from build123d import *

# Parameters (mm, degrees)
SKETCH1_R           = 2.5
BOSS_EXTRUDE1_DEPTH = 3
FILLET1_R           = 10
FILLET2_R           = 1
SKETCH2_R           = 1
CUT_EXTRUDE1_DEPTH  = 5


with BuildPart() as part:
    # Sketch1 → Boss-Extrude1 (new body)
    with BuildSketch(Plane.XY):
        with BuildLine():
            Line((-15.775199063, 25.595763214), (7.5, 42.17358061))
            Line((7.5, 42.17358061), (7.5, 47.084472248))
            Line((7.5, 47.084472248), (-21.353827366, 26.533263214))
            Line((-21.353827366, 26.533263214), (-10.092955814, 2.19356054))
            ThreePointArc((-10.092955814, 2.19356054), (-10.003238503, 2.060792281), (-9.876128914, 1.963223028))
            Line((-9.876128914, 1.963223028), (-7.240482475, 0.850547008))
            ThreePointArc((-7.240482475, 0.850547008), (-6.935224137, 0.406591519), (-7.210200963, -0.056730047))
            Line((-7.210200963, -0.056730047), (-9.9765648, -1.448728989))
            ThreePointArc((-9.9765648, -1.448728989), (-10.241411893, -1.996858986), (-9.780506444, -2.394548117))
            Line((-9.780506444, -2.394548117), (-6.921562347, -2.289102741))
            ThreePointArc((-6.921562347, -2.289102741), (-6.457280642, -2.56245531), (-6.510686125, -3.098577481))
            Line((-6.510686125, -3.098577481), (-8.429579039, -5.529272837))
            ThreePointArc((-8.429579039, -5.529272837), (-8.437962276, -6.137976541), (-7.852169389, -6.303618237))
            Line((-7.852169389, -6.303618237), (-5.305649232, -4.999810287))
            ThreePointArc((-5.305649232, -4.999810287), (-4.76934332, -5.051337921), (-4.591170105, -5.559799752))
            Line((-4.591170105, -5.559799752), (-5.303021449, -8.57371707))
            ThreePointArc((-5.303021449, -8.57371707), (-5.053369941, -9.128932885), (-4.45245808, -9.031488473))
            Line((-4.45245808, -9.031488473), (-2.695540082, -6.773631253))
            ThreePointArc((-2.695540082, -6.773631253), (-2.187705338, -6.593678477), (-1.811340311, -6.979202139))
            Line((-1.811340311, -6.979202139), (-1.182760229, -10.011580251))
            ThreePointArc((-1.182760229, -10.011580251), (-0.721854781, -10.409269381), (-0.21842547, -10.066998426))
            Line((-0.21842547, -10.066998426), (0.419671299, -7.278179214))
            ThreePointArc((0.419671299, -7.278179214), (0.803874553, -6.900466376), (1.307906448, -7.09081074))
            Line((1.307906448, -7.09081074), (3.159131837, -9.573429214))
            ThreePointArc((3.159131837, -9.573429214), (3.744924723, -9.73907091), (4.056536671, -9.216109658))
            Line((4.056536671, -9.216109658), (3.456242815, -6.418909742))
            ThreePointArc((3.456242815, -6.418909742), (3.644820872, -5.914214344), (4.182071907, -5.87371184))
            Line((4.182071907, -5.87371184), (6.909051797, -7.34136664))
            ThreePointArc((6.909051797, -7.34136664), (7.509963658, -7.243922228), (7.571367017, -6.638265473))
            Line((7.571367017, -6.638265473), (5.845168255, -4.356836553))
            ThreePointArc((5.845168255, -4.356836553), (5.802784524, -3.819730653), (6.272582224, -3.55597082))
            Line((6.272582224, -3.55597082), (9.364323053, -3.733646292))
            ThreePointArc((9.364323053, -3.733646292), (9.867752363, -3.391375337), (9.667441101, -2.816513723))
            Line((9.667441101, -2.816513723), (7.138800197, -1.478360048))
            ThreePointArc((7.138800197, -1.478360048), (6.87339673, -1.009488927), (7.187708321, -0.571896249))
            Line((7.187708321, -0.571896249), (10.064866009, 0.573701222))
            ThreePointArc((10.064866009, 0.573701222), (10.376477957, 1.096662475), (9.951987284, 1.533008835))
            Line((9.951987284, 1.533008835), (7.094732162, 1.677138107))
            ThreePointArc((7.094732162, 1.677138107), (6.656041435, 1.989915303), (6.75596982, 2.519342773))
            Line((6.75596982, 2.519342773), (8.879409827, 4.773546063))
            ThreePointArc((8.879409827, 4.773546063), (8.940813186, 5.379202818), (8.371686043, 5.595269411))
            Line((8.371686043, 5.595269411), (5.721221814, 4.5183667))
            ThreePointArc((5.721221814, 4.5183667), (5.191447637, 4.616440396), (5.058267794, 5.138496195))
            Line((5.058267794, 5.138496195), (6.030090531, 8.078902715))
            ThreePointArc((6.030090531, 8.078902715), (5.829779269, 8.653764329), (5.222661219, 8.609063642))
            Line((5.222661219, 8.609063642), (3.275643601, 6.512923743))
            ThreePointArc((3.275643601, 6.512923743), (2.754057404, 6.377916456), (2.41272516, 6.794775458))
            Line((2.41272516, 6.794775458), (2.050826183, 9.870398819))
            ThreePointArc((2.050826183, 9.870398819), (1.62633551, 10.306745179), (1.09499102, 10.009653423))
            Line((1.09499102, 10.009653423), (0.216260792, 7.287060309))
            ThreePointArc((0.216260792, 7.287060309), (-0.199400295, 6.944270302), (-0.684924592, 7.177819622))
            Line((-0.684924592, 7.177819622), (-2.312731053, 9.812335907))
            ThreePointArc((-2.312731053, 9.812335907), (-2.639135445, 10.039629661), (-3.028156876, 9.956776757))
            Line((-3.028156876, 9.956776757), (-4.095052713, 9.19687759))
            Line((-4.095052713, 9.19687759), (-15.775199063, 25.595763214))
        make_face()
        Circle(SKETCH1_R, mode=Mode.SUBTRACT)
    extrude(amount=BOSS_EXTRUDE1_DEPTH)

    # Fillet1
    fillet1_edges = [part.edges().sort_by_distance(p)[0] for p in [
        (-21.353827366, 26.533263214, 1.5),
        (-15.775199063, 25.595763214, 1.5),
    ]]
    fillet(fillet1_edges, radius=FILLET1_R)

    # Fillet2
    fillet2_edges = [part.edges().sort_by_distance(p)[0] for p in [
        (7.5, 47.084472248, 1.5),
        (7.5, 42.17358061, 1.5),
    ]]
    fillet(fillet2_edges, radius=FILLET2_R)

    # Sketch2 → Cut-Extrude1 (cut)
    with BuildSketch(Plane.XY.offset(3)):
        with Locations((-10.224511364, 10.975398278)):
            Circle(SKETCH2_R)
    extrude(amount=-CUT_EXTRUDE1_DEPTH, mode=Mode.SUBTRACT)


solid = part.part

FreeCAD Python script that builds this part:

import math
import FreeCAD as App
import Part
import Sketcher
Q = App.Units.Quantity


def edges_at(feature, points):
    """Names of the edges that pass closest to the given points."""
    edges = feature.Shape.Edges
    near = lambda p: min(range(len(edges)), key=lambda i: edges[i].distToShape(Part.Vertex(*p))[0])
    return sorted({f"Edge{near(p) + 1}" for p in points})

doc = App.newDocument("Part")
body = doc.addObject("PartDesign::Body", "Body")

# Sketch on XY plane
sketch1 = body.newObject("Sketcher::SketchObject", "Sketch")
sketch1.AttachmentSupport = (doc.getObject("XY_Plane"), [""])
sketch1.MapMode = "FlatFace"
sketch1.addGeometry([
    Part.LineSegment(App.Vector(-15.775199, 25.595763, 0), App.Vector(7.5, 42.173581, 0)),  # 0
    Part.LineSegment(App.Vector(7.5, 42.173581, 0), App.Vector(7.5, 47.084472, 0)),  # 1
    Part.LineSegment(App.Vector(7.5, 47.084472, 0), App.Vector(-21.353827, 26.533263, 0)),  # 2
    Part.LineSegment(App.Vector(-21.353827, 26.533263, 0), App.Vector(-10.092956, 2.193561, 0)),  # 3
    Part.ArcOfCircle(Part.Circle(App.Vector(-9.639169, 2.403507, 0), App.Vector(0, 0, 1), 0.5), math.radians(-155.172169), math.radians(-118.289044)),  # 4
    Part.LineSegment(App.Vector(-9.876129, 1.963223, 0), App.Vector(-7.240482, 0.850547, 0)),  # 5
    Part.ArcOfCircle(Part.Circle(App.Vector(-7.434946, 0.389913, 0), App.Vector(0, 0, 1), 0.5), math.radians(-63.289044), math.radians(67.112262)),  # 6
    Part.LineSegment(App.Vector(-7.210201, -0.05673, 0), App.Vector(-9.976565, -1.448729, 0)),  # 7
    Part.ArcOfCircle(Part.Circle(App.Vector(-9.75182, -1.895372, 0), App.Vector(0, 0, 1), 0.5), math.radians(116.710957), math.radians(266.710956)),  # 8
    Part.LineSegment(App.Vector(-9.780506, -2.394548, 0), App.Vector(-6.921562, -2.289103, 0)),  # 9
    Part.ArcOfCircle(Part.Circle(App.Vector(-6.903134, -2.788763, 0), App.Vector(0, 0, 1), 0.5), math.radians(-38.289043), math.radians(92.112262)),  # 10
    Part.LineSegment(App.Vector(-6.510686, -3.098577, 0), App.Vector(-8.429579, -5.529273, 0)),  # 11
    Part.ArcOfCircle(Part.Circle(App.Vector(-8.037132, -5.839087, 0), App.Vector(0, 0, 1), 0.5), math.radians(141.710956), math.radians(291.710957)),  # 12
    Part.LineSegment(App.Vector(-7.852169, -6.303618, 0), App.Vector(-5.305649, -4.99981, 0)),  # 13
    Part.ArcOfCircle(Part.Circle(App.Vector(-5.077782, -5.444868, 0), App.Vector(0, 0, 1), 0.5), math.radians(-13.289043), math.radians(117.112262)),  # 14
    Part.LineSegment(App.Vector(-4.59117, -5.5598, 0), App.Vector(-5.303021, -8.573717, 0)),  # 15
    Part.ArcOfCircle(Part.Circle(App.Vector(-4.81641, -8.688649, 0), App.Vector(0, 0, 1), 0.5), math.radians(166.710957), math.radians(316.710956)),  # 16
    Part.LineSegment(App.Vector(-4.452458, -9.031488, 0), App.Vector(-2.69554, -6.773631, 0)),  # 17
    Part.ArcOfCircle(Part.Circle(App.Vector(-2.300932, -7.080689, 0), App.Vector(0, 0, 1), 0.5), math.radians(11.710957), math.radians(142.112262)),  # 18
    Part.LineSegment(App.Vector(-1.81134, -6.979202, 0), App.Vector(-1.18276, -10.01158, 0)),  # 19
    Part.ArcOfCircle(Part.Circle(App.Vector(-0.693168, -9.910093, 0), App.Vector(0, 0, 1), 0.5), math.radians(-168.289043), math.radians(-18.289044)),  # 20
    Part.LineSegment(App.Vector(-0.218425, -10.066998, 0), App.Vector(0.419671, -7.278179, 0)),  # 21
    Part.ArcOfCircle(Part.Circle(App.Vector(0.907076, -7.3897, 0), App.Vector(0, 0, 1), 0.5), math.radians(36.710957), math.radians(167.112261)),  # 22
    Part.LineSegment(App.Vector(1.307906, -7.090811, 0), App.Vector(3.159132, -9.573429, 0)),  # 23
    Part.ArcOfCircle(Part.Circle(App.Vector(3.559963, -9.27454, 0), App.Vector(0, 0, 1), 0.5), math.radians(-143.289043), math.radians(6.710956)),  # 24
    Part.LineSegment(App.Vector(4.056537, -9.21611, 0), App.Vector(3.456243, -6.41891, 0)),  # 25
    Part.ArcOfCircle(Part.Circle(App.Vector(3.945112, -6.313996, 0), App.Vector(0, 0, 1), 0.5), math.radians(61.710956), math.radians(192.112262)),  # 26
    Part.LineSegment(App.Vector(4.182072, -5.873712, 0), App.Vector(6.909052, -7.341367, 0)),  # 27
    Part.ArcOfCircle(Part.Circle(App.Vector(7.146012, -6.901083, 0), App.Vector(0, 0, 1), 0.5), math.radians(-118.289044), math.radians(31.710957)),  # 28
    Part.LineSegment(App.Vector(7.571367, -6.638265, 0), App.Vector(5.845168, -4.356837, 0)),  # 29
    Part.ArcOfCircle(Part.Circle(App.Vector(6.243896, -4.055147, 0), App.Vector(0, 0, 1), 0.5), math.radians(86.710956), math.radians(217.112262)),  # 30
    Part.LineSegment(App.Vector(6.272582, -3.555971, 0), App.Vector(9.364323, -3.733646, 0)),  # 31
    Part.ArcOfCircle(Part.Circle(App.Vector(9.39301, -3.23447, 0), App.Vector(0, 0, 1), 0.5), math.radians(-93.289044), math.radians(56.710956)),  # 32
    Part.LineSegment(App.Vector(9.667441, -2.816514, 0), App.Vector(7.1388, -1.47836, 0)),  # 33
    Part.ArcOfCircle(Part.Circle(App.Vector(7.372671, -1.036427, 0), App.Vector(0, 0, 1), 0.5), math.radians(111.710956), math.radians(242.112262)),  # 34
    Part.LineSegment(App.Vector(7.187708, -0.571896, 0), App.Vector(10.064866, 0.573701, 0)),  # 35
    Part.ArcOfCircle(Part.Circle(App.Vector(9.879904, 1.038232, 0), App.Vector(0, 0, 1), 0.5), math.radians(-68.289044), math.radians(81.710956)),  # 36
    Part.LineSegment(App.Vector(9.951987, 1.533009, 0), App.Vector(7.094732, 1.677138, 0)),  # 37
    Part.ArcOfCircle(Part.Circle(App.Vector(7.119922, 2.176503, 0), App.Vector(0, 0, 1), 0.5), math.radians(136.710957), math.radians(267.112262)),  # 38
    Part.LineSegment(App.Vector(6.75597, 2.519343, 0), App.Vector(8.87941, 4.773546, 0)),  # 39
    Part.ArcOfCircle(Part.Circle(App.Vector(8.515458, 5.116386, 0), App.Vector(0, 0, 1), 0.5), math.radians(-43.289043), math.radians(106.710956)),  # 40
    Part.LineSegment(App.Vector(8.371686, 5.595269, 0), App.Vector(5.721222, 4.518367, 0)),  # 41
    Part.ArcOfCircle(Part.Circle(App.Vector(5.533011, 4.981591, 0), App.Vector(0, 0, 1), 0.5), math.radians(161.710956), math.radians(292.112262)),  # 42
    Part.LineSegment(App.Vector(5.058268, 5.138496, 0), App.Vector(6.030091, 8.078903, 0)),  # 43
    Part.ArcOfCircle(Part.Circle(App.Vector(5.555348, 8.235808, 0), App.Vector(0, 0, 1), 0.5), math.radians(-18.289043), math.radians(131.710956)),  # 44
    Part.LineSegment(App.Vector(5.222661, 8.609064, 0), App.Vector(3.275644, 6.512924, 0)),  # 45
    Part.ArcOfCircle(Part.Circle(App.Vector(2.909299, 6.853206, 0), App.Vector(0, 0, 1), 0.5), math.radians(-173.289043), math.radians(-42.887739)),  # 46
    Part.LineSegment(App.Vector(2.412725, 6.794775, 0), App.Vector(2.050826, 9.870399, 0)),  # 47
    Part.ArcOfCircle(Part.Circle(App.Vector(1.554252, 9.811968, 0), App.Vector(0, 0, 1), 0.5), math.radians(6.710956), math.radians(156.710956)),  # 48
    Part.LineSegment(App.Vector(1.094991, 10.009653, 0), App.Vector(0.216261, 7.28706, 0)),  # 49
    Part.ArcOfCircle(Part.Circle(App.Vector(-0.259569, 7.440637, 0), App.Vector(0, 0, 1), 0.5), math.radians(-148.289043), math.radians(-17.887738)),  # 50
    Part.LineSegment(App.Vector(-0.684925, 7.17782, 0), App.Vector(-2.312731, 9.812336, 0)),  # 51
    Part.ArcOfCircle(Part.Circle(App.Vector(-2.738086, 9.549519, 0), App.Vector(0, 0, 1), 0.5), math.radians(31.710956), math.radians(125.460463)),  # 52
    Part.LineSegment(App.Vector(-3.028157, 9.956777, 0), App.Vector(-4.095053, 9.196878, 0)),  # 53
    Part.LineSegment(App.Vector(-4.095053, 9.196878, 0), App.Vector(-15.775199, 25.595763, 0)),  # 54
    Part.Circle(App.Vector(0, 0, 0), App.Vector(0, 0, 1), 2.5),  # 55
], False)
sketch1.addConstraint([
    Sketcher.Constraint("Coincident", 0, 2, 1, 1),
    Sketcher.Constraint("Coincident", 1, 2, 2, 1),
    Sketcher.Constraint("Coincident", 2, 2, 3, 1),
    Sketcher.Constraint("Coincident", 3, 2, 4, 1),
    Sketcher.Constraint("Coincident", 4, 2, 5, 1),
    Sketcher.Constraint("Coincident", 5, 2, 6, 2),
    Sketcher.Constraint("Coincident", 6, 1, 7, 1),
    Sketcher.Constraint("Coincident", 7, 2, 8, 1),
    Sketcher.Constraint("Coincident", 8, 2, 9, 1),
    Sketcher.Constraint("Coincident", 9, 2, 10, 2),
    Sketcher.Constraint("Coincident", 10, 1, 11, 1),
    Sketcher.Constraint("Coincident", 11, 2, 12, 1),
    Sketcher.Constraint("Coincident", 12, 2, 13, 1),
    Sketcher.Constraint("Coincident", 13, 2, 14, 2),
    Sketcher.Constraint("Coincident", 14, 1, 15, 1),
    Sketcher.Constraint("Coincident", 15, 2, 16, 1),
    Sketcher.Constraint("Coincident", 16, 2, 17, 1),
    Sketcher.Constraint("Coincident", 17, 2, 18, 2),
    Sketcher.Constraint("Coincident", 18, 1, 19, 1),
    Sketcher.Constraint("Coincident", 19, 2, 20, 1),
    Sketcher.Constraint("Coincident", 20, 2, 21, 1),
    Sketcher.Constraint("Coincident", 21, 2, 22, 2),
    Sketcher.Constraint("Coincident", 22, 1, 23, 1),
    Sketcher.Constraint("Coincident", 23, 2, 24, 1),
    Sketcher.Constraint("Coincident", 24, 2, 25, 1),
    Sketcher.Constraint("Coincident", 25, 2, 26, 2),
    Sketcher.Constraint("Coincident", 26, 1, 27, 1),
    Sketcher.Constraint("Coincident", 27, 2, 28, 1),
    Sketcher.Constraint("Coincident", 28, 2, 29, 1),
    Sketcher.Constraint("Coincident", 29, 2, 30, 2),
    Sketcher.Constraint("Coincident", 30, 1, 31, 1),
    Sketcher.Constraint("Coincident", 31, 2, 32, 1),
    Sketcher.Constraint("Coincident", 32, 2, 33, 1),
    Sketcher.Constraint("Coincident", 33, 2, 34, 2),
    Sketcher.Constraint("Coincident", 34, 1, 35, 1),
    Sketcher.Constraint("Coincident", 35, 2, 36, 1),
    Sketcher.Constraint("Coincident", 36, 2, 37, 1),
    Sketcher.Constraint("Coincident", 37, 2, 38, 2),
    Sketcher.Constraint("Coincident", 38, 1, 39, 1),
    Sketcher.Constraint("Coincident", 39, 2, 40, 1),
    Sketcher.Constraint("Coincident", 40, 2, 41, 1),
    Sketcher.Constraint("Coincident", 41, 2, 42, 2),
    Sketcher.Constraint("Coincident", 42, 1, 43, 1),
    Sketcher.Constraint("Coincident", 43, 2, 44, 1),
    Sketcher.Constraint("Coincident", 44, 2, 45, 1),
    Sketcher.Constraint("Coincident", 45, 2, 46, 2),
    Sketcher.Constraint("Coincident", 46, 1, 47, 1),
    Sketcher.Constraint("Coincident", 47, 2, 48, 1),
    Sketcher.Constraint("Coincident", 48, 2, 49, 1),
    Sketcher.Constraint("Coincident", 49, 2, 50, 2),
    Sketcher.Constraint("Coincident", 50, 1, 51, 1),
    Sketcher.Constraint("Coincident", 51, 2, 52, 1),
    Sketcher.Constraint("Coincident", 52, 2, 53, 1),
    Sketcher.Constraint("Coincident", 53, 2, 54, 1),
    Sketcher.Constraint("Coincident", 54, 2, 0, 1),
    Sketcher.Constraint("Vertical", 1),
    Sketcher.Constraint("Coincident", 55, 3, -1, 1),
    Sketcher.Constraint("Diameter", 55, Q("5 mm")),
    Sketcher.Constraint("Radius", 4, Q("0.5 mm")),
    Sketcher.Constraint("Radius", 6, Q("0.5 mm")),
    Sketcher.Constraint("Radius", 8, Q("0.5 mm")),
    Sketcher.Constraint("Radius", 10, Q("0.5 mm")),
    Sketcher.Constraint("Radius", 12, Q("0.5 mm")),
    Sketcher.Constraint("Radius", 14, Q("0.5 mm")),
    Sketcher.Constraint("Radius", 16, Q("0.5 mm")),
    Sketcher.Constraint("Radius", 18, Q("0.5 mm")),
    Sketcher.Constraint("Radius", 20, Q("0.5 mm")),
    Sketcher.Constraint("Radius", 22, Q("0.5 mm")),
    Sketcher.Constraint("Radius", 24, Q("0.5 mm")),
    Sketcher.Constraint("Radius", 26, Q("0.5 mm")),
    Sketcher.Constraint("Radius", 28, Q("0.5 mm")),
    Sketcher.Constraint("Radius", 30, Q("0.5 mm")),
    Sketcher.Constraint("Radius", 32, Q("0.5 mm")),
    Sketcher.Constraint("Radius", 34, Q("0.5 mm")),
    Sketcher.Constraint("Radius", 36, Q("0.5 mm")),
    Sketcher.Constraint("Radius", 38, Q("0.5 mm")),
    Sketcher.Constraint("Radius", 40, Q("0.5 mm")),
    Sketcher.Constraint("Radius", 42, Q("0.5 mm")),
    Sketcher.Constraint("Radius", 44, Q("0.5 mm")),
    Sketcher.Constraint("Radius", 46, Q("0.5 mm")),
    Sketcher.Constraint("Radius", 48, Q("0.5 mm")),
    Sketcher.Constraint("Radius", 50, Q("0.5 mm")),
    Sketcher.Constraint("Radius", 52, Q("0.5 mm")),
    Sketcher.Constraint("DistanceX", -1, 1, 0, 2, Q("7.5 mm")),
    Sketcher.Constraint("DistanceY", 20, 2, -1, 1, Q("10.066998 mm")),
    Sketcher.Constraint("DistanceY", 1, 1, 1, 2, Q("4.910892 mm")),
    Sketcher.Constraint("DistanceY", 22, 3, -1, 1, Q("7.3897 mm")),
    Sketcher.Constraint("DistanceX", -1, 1, 46, 3, Q("2.909299 mm")),
    Sketcher.Constraint("DistanceX", 6, 1, -1, 1, Q("7.210201 mm")),
    Sketcher.Constraint("DistanceY", 14, 1, -1, 1, Q("5.5598 mm")),
    Sketcher.Constraint("DistanceX", -1, 1, 33, 2, Q("7.1388 mm")),
    Sketcher.Constraint("DistanceY", -1, 1, 35, 2, Q("0.573701 mm")),
    Sketcher.Constraint("DistanceY", -1, 1, 47, 2, Q("9.870399 mm")),
    Sketcher.Constraint("DistanceX", 54, 2, -1, 1, Q("15.775199 mm")),
    Sketcher.Constraint("Distance", 7, Q("3.096842 mm")),
    Sketcher.Constraint("Distance", 11, Q("3.096842 mm")),
    Sketcher.Constraint("Distance", 15, Q("3.096842 mm")),
    Sketcher.Constraint("Distance", 19, Q("3.096842 mm")),
    Sketcher.Constraint("Distance", 23, Q("3.096842 mm")),
    Sketcher.Constraint("Distance", 27, Q("3.096842 mm")),
    Sketcher.Constraint("Distance", 31, Q("3.096842 mm")),
    Sketcher.Constraint("Distance", 35, Q("3.096842 mm")),
    Sketcher.Constraint("Distance", 39, Q("3.096842 mm")),
    Sketcher.Constraint("Distance", 43, Q("3.096842 mm")),
    Sketcher.Constraint("Distance", 47, Q("3.096842 mm")),
    Sketcher.Constraint("Distance", 51, Q("3.096842 mm")),
    Sketcher.Constraint("DistanceX", 4, 3, -1, 1, Q("9.639169 mm")),
    Sketcher.Constraint("DistanceX", 8, 3, -1, 1, Q("9.75182 mm")),
    Sketcher.Constraint("DistanceY", 8, 3, -1, 1, Q("1.895372 mm")),
    Sketcher.Constraint("DistanceX", 12, 3, -1, 1, Q("8.037132 mm")),
    Sketcher.Constraint("DistanceX", 14, 3, -1, 1, Q("5.077782 mm")),
    Sketcher.Constraint("DistanceX", 16, 3, -1, 1, Q("4.81641 mm")),
    Sketcher.Constraint("DistanceY", 16, 3, -1, 1, Q("8.688649 mm")),
    Sketcher.Constraint("DistanceY", 18, 3, -1, 1, Q("7.080689 mm")),
    Sketcher.Constraint("DistanceX", 20, 3, -1, 1, Q("0.693168 mm")),
    Sketcher.Constraint("DistanceY", 24, 3, -1, 1, Q("9.27454 mm")),
    Sketcher.Constraint("DistanceX", -1, 1, 26, 3, Q("3.945112 mm")),
    Sketcher.Constraint("DistanceX", -1, 1, 28, 3, Q("7.146012 mm")),
    Sketcher.Constraint("DistanceX", -1, 1, 32, 3, Q("9.39301 mm")),
    Sketcher.Constraint("DistanceY", 32, 3, -1, 1, Q("3.23447 mm")),
    Sketcher.Constraint("DistanceX", -1, 1, 34, 3, Q("7.372671 mm")),
    Sketcher.Constraint("DistanceX", -1, 1, 38, 3, Q("7.119922 mm")),
    Sketcher.Constraint("DistanceX", -1, 1, 42, 3, Q("5.533011 mm")),
    Sketcher.Constraint("DistanceY", -1, 1, 42, 3, Q("4.981591 mm")),
    Sketcher.Constraint("DistanceY", -1, 1, 44, 3, Q("8.235808 mm")),
    Sketcher.Constraint("DistanceY", -1, 1, 48, 3, Q("9.811968 mm")),
    Sketcher.Constraint("DistanceX", 50, 3, -1, 1, Q("0.259569 mm")),
    Sketcher.Constraint("DistanceY", -1, 1, 52, 3, Q("9.549519 mm")),
    Sketcher.Constraint("DistanceY", -1, 1, 0, 2, Q("42.173581 mm")),
    Sketcher.Constraint("DistanceY", -1, 1, 3, 2, Q("2.193561 mm")),
    Sketcher.Constraint("DistanceX", 4, 2, -1, 1, Q("9.876129 mm")),
    Sketcher.Constraint("DistanceY", 6, 1, -1, 1, Q("0.05673 mm")),
    Sketcher.Constraint("DistanceY", 8, 2, -1, 1, Q("2.394548 mm")),
    Sketcher.Constraint("DistanceX", 11, 2, -1, 1, Q("8.429579 mm")),
    Sketcher.Constraint("DistanceX", 12, 2, -1, 1, Q("7.852169 mm")),
    Sketcher.Constraint("DistanceY", 12, 2, -1, 1, Q("6.303618 mm")),
    Sketcher.Constraint("DistanceX", 13, 2, -1, 1, Q("5.305649 mm")),
    Sketcher.Constraint("DistanceY", 13, 2, -1, 1, Q("4.99981 mm")),
    Sketcher.Constraint("DistanceX", 16, 2, -1, 1, Q("4.452458 mm")),
    Sketcher.Constraint("DistanceX", 17, 2, -1, 1, Q("2.69554 mm")),
    Sketcher.Constraint("DistanceY", 17, 2, -1, 1, Q("6.773631 mm")),
    Sketcher.Constraint("DistanceX", 18, 1, -1, 1, Q("1.81134 mm")),
    Sketcher.Constraint("DistanceX", 19, 2, -1, 1, Q("1.18276 mm")),
    Sketcher.Constraint("DistanceX", -1, 1, 21, 2, Q("0.419671 mm")),
    Sketcher.Constraint("DistanceY", 21, 2, -1, 1, Q("7.278179 mm")),
    Sketcher.Constraint("DistanceY", 22, 1, -1, 1, Q("7.090811 mm")),
    Sketcher.Constraint("DistanceX", -1, 1, 23, 2, Q("3.159132 mm")),
    Sketcher.Constraint("DistanceY", 24, 2, -1, 1, Q("9.21611 mm")),
    Sketcher.Constraint("DistanceY", 25, 2, -1, 1, Q("6.41891 mm")),
    Sketcher.Constraint("DistanceX", -1, 1, 26, 1, Q("4.182072 mm")),
    Sketcher.Constraint("DistanceY", 26, 1, -1, 1, Q("5.873712 mm")),
    Sketcher.Constraint("DistanceX", -1, 1, 27, 2, Q("6.909052 mm")),
    Sketcher.Constraint("DistanceX", -1, 1, 29, 2, Q("5.845168 mm")),
    Sketcher.Constraint("DistanceY", 30, 1, -1, 1, Q("3.555971 mm")),
    Sketcher.Constraint("DistanceX", -1, 1, 32, 2, Q("9.667441 mm")),
    Sketcher.Constraint("DistanceY", 33, 2, -1, 1, Q("1.47836 mm")),
    Sketcher.Constraint("DistanceX", -1, 1, 34, 1, Q("7.187708 mm")),
    Sketcher.Constraint("DistanceY", -1, 1, 36, 2, Q("1.533009 mm")),
    Sketcher.Constraint("DistanceY", -1, 1, 37, 2, Q("1.677138 mm")),
    Sketcher.Constraint("DistanceX", -1, 1, 38, 1, Q("6.75597 mm")),
    Sketcher.Constraint("DistanceX", -1, 1, 39, 2, Q("8.87941 mm")),
    Sketcher.Constraint("DistanceY", -1, 1, 40, 2, Q("5.595269 mm")),
    Sketcher.Constraint("DistanceX", -1, 1, 41, 2, Q("5.721222 mm")),
    Sketcher.Constraint("DistanceX", -1, 1, 43, 2, Q("6.030091 mm")),
    Sketcher.Constraint("DistanceX", -1, 1, 44, 2, Q("5.222661 mm")),
    Sketcher.Constraint("DistanceX", -1, 1, 48, 2, Q("1.094991 mm")),
    Sketcher.Constraint("DistanceX", -1, 1, 49, 2, Q("0.216261 mm")),
    Sketcher.Constraint("DistanceY", -1, 1, 49, 2, Q("7.28706 mm")),
    Sketcher.Constraint("DistanceY", -1, 1, 50, 1, Q("7.17782 mm")),
    Sketcher.Constraint("DistanceX", 51, 2, -1, 1, Q("2.312731 mm")),
    Sketcher.Constraint("Distance", 0, Q("28.575495 mm")),
    Sketcher.Constraint("Distance", 2, Q("35.424505 mm")),
    Sketcher.Constraint("Distance", 3, Q("26.818433 mm")),
    Sketcher.Constraint("Distance", 5, Q("2.860888 mm")),
    Sketcher.Constraint("Distance", 9, Q("2.860888 mm")),
    Sketcher.Constraint("Distance", 29, Q("2.860888 mm")),
    Sketcher.Constraint("Distance", 37, Q("2.860888 mm")),
    Sketcher.Constraint("Distance", 41, Q("2.860888 mm")),
    Sketcher.Constraint("Distance", 45, Q("2.860888 mm")),
    Sketcher.Constraint("Distance", 49, Q("2.860888 mm")),
    Sketcher.Constraint("Distance", 53, Q("1.309852 mm")),
    Sketcher.Constraint("Distance", 54, Q("20.133288 mm")),
    Sketcher.Constraint("DistanceY", -1, 1, 4, 3, Q("2.403507 mm")),
    Sketcher.Constraint("DistanceX", 6, 3, -1, 1, Q("7.434946 mm")),
    Sketcher.Constraint("DistanceX", 10, 3, -1, 1, Q("6.903134 mm")),
    Sketcher.Constraint("DistanceY", 10, 3, -1, 1, Q("2.788763 mm")),
    Sketcher.Constraint("DistanceX", -1, 1, 30, 3, Q("6.243896 mm")),
    Sketcher.Constraint("DistanceY", 30, 3, -1, 1, Q("4.055147 mm")),
    Sketcher.Constraint("DistanceX", -1, 1, 36, 3, Q("9.879904 mm")),
    Sketcher.Constraint("DistanceX", -1, 1, 44, 3, Q("5.555348 mm")),
    Sketcher.Constraint("DistanceY", -1, 1, 46, 3, Q("6.853206 mm")),
    Sketcher.Constraint("DistanceX", 52, 2, -1, 1, Q("3.028157 mm")),
])
pad1 = body.newObject("PartDesign::Pad", "Pad")
pad1.Profile = sketch1
pad1.Length = 3
doc.recompute()

fillet = body.newObject("PartDesign::Fillet", "Fillet")
fillet.Base = (pad1, edges_at(pad1, [(-21.354, 26.533, 1.5), (-15.775, 25.596, 1.5)]))
fillet.Radius = 10
doc.recompute()

fillet2 = body.newObject("PartDesign::Fillet", "Fillet001")
fillet2.Base = (fillet, edges_at(fillet, [(7.5, 47.084, 1.5), (7.5, 42.174, 1.5)]))
fillet2.Radius = 1

# Sketch on XY plane
sketch2 = body.newObject("Sketcher::SketchObject", "Sketch001")
sketch2.AttachmentSupport = (doc.getObject("XY_Plane"), [""])
sketch2.MapMode = "FlatFace"
sketch2.AttachmentOffset = App.Placement(App.Vector(0, 0, 3), App.Rotation())
sketch2.addGeometry(Part.Circle(App.Vector(-10.224511, 10.975398, 0), App.Vector(0, 0, 1), 1), False)
sketch2.addConstraint([
    Sketcher.Constraint("Diameter", 0, Q("2 mm")),
    Sketcher.Constraint("DistanceY", -1, 1, 0, 3, Q("10.975398 mm")),
    Sketcher.Constraint("DistanceX", 0, 3, -1, 1, Q("10.224511 mm")),
])
pocket1 = body.newObject("PartDesign::Pocket", "Pocket")
pocket1.Profile = sketch2
pocket1.Length = 5

doc.recompute()
